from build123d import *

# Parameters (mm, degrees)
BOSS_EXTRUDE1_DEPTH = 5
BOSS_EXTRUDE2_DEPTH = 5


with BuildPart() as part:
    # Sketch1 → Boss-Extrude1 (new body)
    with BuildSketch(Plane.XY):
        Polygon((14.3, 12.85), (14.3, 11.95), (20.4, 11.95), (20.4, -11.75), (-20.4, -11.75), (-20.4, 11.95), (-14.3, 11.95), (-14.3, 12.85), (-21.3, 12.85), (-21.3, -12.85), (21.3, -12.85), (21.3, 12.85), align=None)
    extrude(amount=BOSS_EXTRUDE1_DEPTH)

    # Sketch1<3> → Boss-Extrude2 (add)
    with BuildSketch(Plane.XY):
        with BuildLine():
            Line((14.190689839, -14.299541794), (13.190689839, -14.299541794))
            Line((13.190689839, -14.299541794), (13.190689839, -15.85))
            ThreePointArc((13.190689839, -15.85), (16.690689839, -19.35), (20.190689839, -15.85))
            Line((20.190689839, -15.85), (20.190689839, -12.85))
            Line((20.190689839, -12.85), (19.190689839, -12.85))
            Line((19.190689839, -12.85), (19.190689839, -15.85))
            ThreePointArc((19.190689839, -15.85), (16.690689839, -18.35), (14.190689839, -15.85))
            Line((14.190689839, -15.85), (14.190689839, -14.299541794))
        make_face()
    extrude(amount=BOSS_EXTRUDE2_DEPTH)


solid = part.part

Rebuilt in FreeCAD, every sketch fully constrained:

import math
import FreeCAD as App
import Part
import Sketcher

V = App.Vector
Q = App.Units.Quantity

doc = App.newDocument("Part")
params = doc.addObject("Spreadsheet::Sheet", "Params")
for row, (alias, value) in enumerate([
    ("sketch1_width", "7 mm"),
    ("sketch1_width2", "6.1 mm"),
    ("sketch1_width3", "40.8 mm"),
    ("sketch1_height", "0.9 mm"),
    ("sketch1_height2", "23.7 mm"),
    ("pad1_length", "5 mm"),
    ("sketch2_radius", "3.5 mm"),
    ("sketch2_radius2", "2.5 mm"),
    ("sketch2_height", "3 mm"),
    ("pad2_length", "5 mm"),
], start=1):
    params.set(f"A{row}", alias)
    params.set(f"B{row}", "=" + value)
    params.setAlias(f"B{row}", alias)

body = doc.addObject("PartDesign::Body", "Body")

sketch1 = body.newObject("Sketcher::SketchObject", "Sketch")
sketch1.AttachmentSupport = (doc.getObject("XY_Plane"), [""])
sketch1.MapMode = "FlatFace"
sketch1.addGeometry(Part.LineSegment(V(14.3, 12.8, 0), V(14.3, 11.9, 0)), False)
sketch1.addGeometry(Part.LineSegment(V(14.3, 11.9, 0), V(20.4, 11.9, 0)), False)
sketch1.addGeometry(Part.LineSegment(V(20.4, 11.9, 0), V(20.4, -11.8, 0)), False)
sketch1.addGeometry(Part.LineSegment(V(20.4, -11.8, 0), V(-20.4, -11.8, 0)), False)
sketch1.addGeometry(Part.LineSegment(V(-20.4, -11.8, 0), V(-20.4, 11.9, 0)), False)
sketch1.addGeometry(Part.LineSegment(V(-20.4, 11.9, 0), V(-14.3, 11.9, 0)), False)
sketch1.addGeometry(Part.LineSegment(V(-14.3, 11.9, 0), V(-14.3, 12.8, 0)), False)
sketch1.addGeometry(Part.LineSegment(V(-14.3, 12.8, 0), V(-21.3, 12.8, 0)), False)
sketch1.addGeometry(Part.LineSegment(V(-21.3, 12.8, 0), V(-21.3, -12.8, 0)), False)
sketch1.addGeometry(Part.LineSegment(V(-21.3, -12.8, 0), V(21.3, -12.8, 0)), False)
sketch1.addGeometry(Part.LineSegment(V(21.3, -12.8, 0), V(21.3, 12.8, 0)), False)
sketch1.addGeometry(Part.LineSegment(V(21.3, 12.8, 0), V(14.3, 12.8, 0)), False)
sketch1.addConstraint(Sketcher.Constraint("Coincident", 0, 2, 1, 1))
sketch1.addConstraint(Sketcher.Constraint("Coincident", 1, 2, 2, 1))
sketch1.addConstraint(Sketcher.Constraint("Coincident", 2, 2, 3, 1))
sketch1.addConstraint(Sketcher.Constraint("Coincident", 3, 2, 4, 1))
sketch1.addConstraint(Sketcher.Constraint("Coincident", 4, 2, 5, 1))
sketch1.addConstraint(Sketcher.Constraint("Coincident", 5, 2, 6, 1))
sketch1.addConstraint(Sketcher.Constraint("Coincident", 6, 2, 7, 1))
sketch1.addConstraint(Sketcher.Constraint("Coincident", 7, 2, 8, 1))
sketch1.addConstraint(Sketcher.Constraint("Coincident", 8, 2, 9, 1))
sketch1.addConstraint(Sketcher.Constraint("Coincident", 9, 2, 10, 1))
sketch1.addConstraint(Sketcher.Constraint("Coincident", 10, 2, 11, 1))
sketch1.addConstraint(Sketcher.Constraint("Coincident", 11, 2, 0, 1))
sketch1.addConstraint(Sketcher.Constraint("Vertical", 0))
sketch1.addConstraint(Sketcher.Constraint("Horizontal", 1))
sketch1.addConstraint(Sketcher.Constraint("Vertical", 2))
sketch1.addConstraint(Sketcher.Constraint("Horizontal", 3))
sketch1.addConstraint(Sketcher.Constraint("Vertical", 4))
sketch1.addConstraint(Sketcher.Constraint("Horizontal", 5))
sketch1.addConstraint(Sketcher.Constraint("Vertical", 6))
sketch1.addConstraint(Sketcher.Constraint("Horizontal", 7))
sketch1.addConstraint(Sketcher.Constraint("Vertical", 8))
sketch1.addConstraint(Sketcher.Constraint("Horizontal", 9))
sketch1.addConstraint(Sketcher.Constraint("Vertical", 10))
sketch1.addConstraint(Sketcher.Constraint("Horizontal", 11))
sketch1.addConstraint(Sketcher.Constraint("Symmetric", 7, 2, 9, 2, -1, 1))
sketch1.addConstraint(Sketcher.Constraint("Symmetric", 1, 2, 4, 2, -2))
sketch1.addConstraint(Sketcher.Constraint("Symmetric", 6, 2, 11, 2, -2))
sketch1.addConstraint(Sketcher.Constraint("DistanceX", 7, 2, 7, 1, Q("7 mm")))
sketch1.addConstraint(Sketcher.Constraint("DistanceX", 1, 1, 1, 2, Q("6.1 mm")))
sketch1.addConstraint(Sketcher.Constraint("DistanceX", 3, 2, 3, 1, Q("40.8 mm")))
sketch1.addConstraint(Sketcher.Constraint("DistanceY", 0, 2, 0, 1, Q("0.9 mm")))
sketch1.addConstraint(Sketcher.Constraint("DistanceY", 2, 2, 2, 1, Q("23.7 mm")))
sketch1.addConstraint(Sketcher.Constraint("DistanceY", 8, 2, 8, 1, Q("25.7 mm")))
sketch1.setExpression("Constraints[27]", "Params.sketch1_width")
sketch1.setExpression("Constraints[28]", "Params.sketch1_width2")
sketch1.setExpression("Constraints[29]", "Params.sketch1_width3")
sketch1.setExpression("Constraints[30]", "Params.sketch1_height")
sketch1.setExpression("Constraints[31]", "Params.sketch1_height2")
pad1 = body.newObject("PartDesign::Pad", "Pad")
pad1.Profile = sketch1
pad1.setExpression("Length", "Params.pad1_length")

sketch2 = body.newObject("Sketcher::SketchObject", "Sketch001")
sketch2.AttachmentSupport = (doc.getObject("XY_Plane"), [""])
sketch2.MapMode = "FlatFace"
sketch2.addGeometry(Part.LineSegment(V(14.2, -14.3, 0), V(13.2, -14.3, 0)), False)
sketch2.addGeometry(Part.LineSegment(V(13.2, -14.3, 0), V(13.2, -15.8, 0)), False)
sketch2.addGeometry(Part.ArcOfCircle(Part.Circle(V(16.7, -15.8, 0), V(0, 0, 1), 3.5), math.radians(180), math.radians(360)), False)
sketch2.addGeometry(Part.LineSegment(V(20.2, -15.8, 0), V(20.2, -12.8, 0)), False)
sketch2.addGeometry(Part.LineSegment(V(20.2, -12.8, 0), V(19.2, -12.8, 0)), False)
sketch2.addGeometry(Part.LineSegment(V(19.2, -12.8, 0), V(19.2, -15.8, 0)), False)
sketch2.addGeometry(Part.ArcOfCircle(Part.Circle(V(16.7, -15.8, 0), V(0, 0, 1), 2.5), math.radians(180), math.radians(360)), False)
sketch2.addGeometry(Part.LineSegment(V(14.2, -15.8, 0), V(14.2, -14.3, 0)), False)
sketch2.addConstraint(Sketcher.Constraint("Coincident", 0, 2, 1, 1))
sketch2.addConstraint(Sketcher.Constraint("Tangent", 1, 2, 2, 1))
sketch2.addConstraint(Sketcher.Constraint("Tangent", 2, 2, 3, 1))
sketch2.addConstraint(Sketcher.Constraint("Coincident", 3, 2, 4, 1))
sketch2.addConstraint(Sketcher.Constraint("Coincident", 4, 2, 5, 1))
sketch2.addConstraint(Sketcher.Constraint("Tangent", 5, 2, 6, 2))
sketch2.addConstraint(Sketcher.Constraint("Tangent", 6, 1, 7, 1))
sketch2.addConstraint(Sketcher.Constraint("Coincident", 7, 2, 0, 1))
sketch2.addConstraint(Sketcher.Constraint("Horizontal", 0))
sketch2.addConstraint(Sketcher.Constraint("Vertical", 1))
sketch2.addConstraint(Sketcher.Constraint("Vertical", 3))
sketch2.addConstraint(Sketcher.Constraint("Horizontal", 4))
sketch2.addConstraint(Sketcher.Constraint("Vertical", 5))
sketch2.addConstraint(Sketcher.Constraint("Vertical", 7))
sketch2.addConstraint(Sketcher.Constraint("Coincident", 6, 3, 2, 3))
sketch2.addConstraint(Sketcher.Constraint("Radius", 2, Q("3.5 mm")))
sketch2.addConstraint(Sketcher.Constraint("Radius", 6, Q("2.5 mm")))
sketch2.addConstraint(Sketcher.Constraint("DistanceY", 3, 1, 3, 2, Q("3 mm")))
sketch2.addConstraint(Sketcher.Constraint("DistanceY", 2, 3, -1, 1, Q("15.85 mm")))
sketch2.addConstraint(Sketcher.Constraint("DistanceY", 1, 2, 1, 1, Q("1.550458 mm")))
sketch2.addConstraint(Sketcher.Constraint("DistanceX", -1, 1, 2, 3, Q("16.69069 mm")))
sketch2.setExpression("Constraints[15]", "Params.sketch2_radius")
sketch2.setExpression("Constraints[16]", "Params.sketch2_radius2")
sketch2.setExpression("Constraints[17]", "Params.sketch2_height")
pad2 = body.newObject("PartDesign::Pad", "Pad001")
pad2.Profile = sketch2
pad2.setExpression("Length", "Params.pad2_length")

doc.recompute()
